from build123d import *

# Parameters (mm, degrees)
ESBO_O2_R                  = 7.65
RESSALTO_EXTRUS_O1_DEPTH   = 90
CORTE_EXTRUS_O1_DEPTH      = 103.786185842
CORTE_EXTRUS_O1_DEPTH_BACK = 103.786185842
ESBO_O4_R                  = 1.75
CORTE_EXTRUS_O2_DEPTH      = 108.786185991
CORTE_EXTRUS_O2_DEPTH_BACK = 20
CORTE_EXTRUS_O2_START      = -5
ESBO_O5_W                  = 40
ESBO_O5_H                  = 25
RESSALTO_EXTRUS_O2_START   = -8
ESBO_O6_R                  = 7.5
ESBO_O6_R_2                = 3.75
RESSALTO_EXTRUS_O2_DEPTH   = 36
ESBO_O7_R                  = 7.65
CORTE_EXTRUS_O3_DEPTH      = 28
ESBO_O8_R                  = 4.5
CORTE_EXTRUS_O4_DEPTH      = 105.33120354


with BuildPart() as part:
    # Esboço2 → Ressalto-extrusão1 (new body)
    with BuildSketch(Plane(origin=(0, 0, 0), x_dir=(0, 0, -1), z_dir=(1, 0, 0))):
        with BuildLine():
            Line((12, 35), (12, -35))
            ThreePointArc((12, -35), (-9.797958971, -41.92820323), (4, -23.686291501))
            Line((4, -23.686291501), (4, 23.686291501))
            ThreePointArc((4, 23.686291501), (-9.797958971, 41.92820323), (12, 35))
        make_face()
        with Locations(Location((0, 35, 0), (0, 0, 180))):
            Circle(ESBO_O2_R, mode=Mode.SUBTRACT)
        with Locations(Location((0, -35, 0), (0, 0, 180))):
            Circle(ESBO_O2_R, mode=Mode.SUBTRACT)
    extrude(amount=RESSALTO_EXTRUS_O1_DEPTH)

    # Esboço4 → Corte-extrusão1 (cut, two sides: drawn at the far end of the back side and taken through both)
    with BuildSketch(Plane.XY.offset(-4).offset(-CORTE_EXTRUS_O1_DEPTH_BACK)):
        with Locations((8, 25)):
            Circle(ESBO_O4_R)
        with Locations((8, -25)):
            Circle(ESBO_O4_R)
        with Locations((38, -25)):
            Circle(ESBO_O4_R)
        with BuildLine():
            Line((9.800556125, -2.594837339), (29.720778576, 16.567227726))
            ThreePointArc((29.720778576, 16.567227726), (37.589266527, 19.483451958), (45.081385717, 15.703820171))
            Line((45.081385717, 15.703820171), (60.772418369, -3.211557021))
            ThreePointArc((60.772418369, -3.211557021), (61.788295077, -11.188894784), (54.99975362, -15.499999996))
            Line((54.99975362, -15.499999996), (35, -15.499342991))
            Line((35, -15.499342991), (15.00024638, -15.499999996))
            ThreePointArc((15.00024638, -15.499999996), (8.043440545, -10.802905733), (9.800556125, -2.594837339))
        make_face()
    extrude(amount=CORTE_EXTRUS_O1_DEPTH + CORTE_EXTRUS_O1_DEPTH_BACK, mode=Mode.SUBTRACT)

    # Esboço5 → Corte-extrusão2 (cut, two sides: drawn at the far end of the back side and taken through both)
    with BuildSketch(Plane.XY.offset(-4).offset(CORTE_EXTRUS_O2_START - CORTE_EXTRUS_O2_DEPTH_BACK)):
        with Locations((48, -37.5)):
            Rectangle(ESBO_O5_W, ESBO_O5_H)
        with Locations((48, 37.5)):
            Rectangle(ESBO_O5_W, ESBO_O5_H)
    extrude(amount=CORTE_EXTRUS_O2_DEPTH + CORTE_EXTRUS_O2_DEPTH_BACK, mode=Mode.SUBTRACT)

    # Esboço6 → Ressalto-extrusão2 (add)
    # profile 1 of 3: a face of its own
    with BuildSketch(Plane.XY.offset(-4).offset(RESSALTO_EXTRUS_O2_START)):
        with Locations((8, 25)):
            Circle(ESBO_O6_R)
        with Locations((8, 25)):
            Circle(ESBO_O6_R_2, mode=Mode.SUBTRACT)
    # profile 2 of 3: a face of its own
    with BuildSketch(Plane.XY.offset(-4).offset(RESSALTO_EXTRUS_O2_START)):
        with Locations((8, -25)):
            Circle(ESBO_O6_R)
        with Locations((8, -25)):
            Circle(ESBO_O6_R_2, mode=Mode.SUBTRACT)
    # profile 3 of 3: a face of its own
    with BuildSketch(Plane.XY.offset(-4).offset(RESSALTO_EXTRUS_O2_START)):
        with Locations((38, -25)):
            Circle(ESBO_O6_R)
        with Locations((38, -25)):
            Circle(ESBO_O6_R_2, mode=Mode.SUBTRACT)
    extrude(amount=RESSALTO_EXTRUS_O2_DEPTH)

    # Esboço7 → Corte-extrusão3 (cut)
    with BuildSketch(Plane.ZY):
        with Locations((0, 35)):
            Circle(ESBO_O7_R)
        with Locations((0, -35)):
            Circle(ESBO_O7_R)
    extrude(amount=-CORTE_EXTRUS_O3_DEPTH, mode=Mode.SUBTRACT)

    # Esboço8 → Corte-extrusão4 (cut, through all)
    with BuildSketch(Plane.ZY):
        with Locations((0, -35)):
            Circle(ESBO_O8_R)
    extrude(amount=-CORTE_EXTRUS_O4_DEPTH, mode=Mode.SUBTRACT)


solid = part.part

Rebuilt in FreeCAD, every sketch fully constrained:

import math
import FreeCAD as App
import Part
import Sketcher


def add_polygon(sketch, points):
    """Adds a closed chain of lines whose ends are joined by coincident constraints."""
    first, n = sketch.GeometryCount, len(points)
    for a, b in zip(points, points[1:] + points[:1]):
        sketch.addGeometry(Part.LineSegment(App.Vector(*a, 0), App.Vector(*b, 0)), False)
    for i in range(n):
        sketch.addConstraint(Sketcher.Constraint("Coincident", first + i, 2, first + (i + 1) % n, 1))

doc = App.newDocument("Part")
body = doc.addObject("PartDesign::Body", "Body")

# Sketch on YZ plane
sketch1 = doc.addObject("Sketcher::SketchObject", "Sketch")
body.addObject(sketch1)
sketch1.AttachmentSupport = (doc.YZ_Plane, [""])
sketch1.MapMode = "FlatFace"
sketch1.addGeometry([
    Part.LineSegment(App.Vector(-35, -12, 0), App.Vector(35, -12, 0)),  # 0
    Part.ArcOfCircle(Part.Circle(App.Vector(35, 0, 0), App.Vector(0, 0, 1), 12), math.radians(-90), math.radians(199)),  # 1
    Part.LineSegment(App.Vector(24, -4, 0), App.Vector(-24, -4, 0)),  # 2
    Part.ArcOfCircle(Part.Circle(App.Vector(-35, 0, 0), App.Vector(0, 0, 1), 12), math.radians(-19), math.radians(270)),  # 3
    Part.Circle(App.Vector(-35, 0, 0), App.Vector(0, 0, 1), 8),  # 4
    Part.Circle(App.Vector(35, 0, 0), App.Vector(0, 0, 1), 8),  # 5
], False)
sketch1.addConstraint([
    Sketcher.Constraint("Tangent", 0, 2, 1, 1),
    Sketcher.Constraint("Coincident", 1, 2, 2, 1),
    Sketcher.Constraint("Coincident", 2, 2, 3, 1),
    Sketcher.Constraint("Tangent", 3, 2, 0, 1),
    Sketcher.Constraint("Horizontal", 0),
    Sketcher.Constraint("Horizontal", 2),
    Sketcher.Constraint("Coincident", 4, 3, 3, 3),
    Sketcher.Constraint("Coincident", 5, 3, 1, 3),
    Sketcher.Constraint("Equal", 1, 3),
    Sketcher.Constraint("Equal", 4, 5),
    Sketcher.Constraint("Symmetric", 1, 3, 3, 3, -1, 1),
    Sketcher.Constraint("Radius", 1, 12.0),
    Sketcher.Constraint("Diameter", 4, 15.3),
    Sketcher.Constraint("DistanceX", 0, 1, 0, 2, 70.0),
    Sketcher.Constraint("DistanceY", 1, 2, -1, 1, 4.0),
])
pad1 = doc.addObject("PartDesign::Pad", "Pad")
body.addObject(pad1)
pad1.Profile = sketch1
pad1.Length = 90

# Sketch on XY plane
sketch2 = doc.addObject("Sketcher::SketchObject", "Sketch001")
body.addObject(sketch2)
sketch2.AttachmentSupport = (doc.XY_Plane, [""])
sketch2.MapMode = "FlatFace"
sketch2.AttachmentOffset = App.Placement(App.Vector(0, 0, -4), App.Rotation())
sketch2.addGeometry([
    Part.Circle(App.Vector(8, 25, 0), App.Vector(0, 0, 1), 1.8),  # 0
    Part.Circle(App.Vector(8, -25, 0), App.Vector(0, 0, 1), 1.8),  # 1
    Part.Circle(App.Vector(38, -25, 0), App.Vector(0, 0, 1), 1.8),  # 2
    Part.LineSegment(App.Vector(29.7, 16.6, 0), App.Vector(9.8, -2.6, 0)),  # 3
    Part.ArcOfCircle(Part.Circle(App.Vector(15, -8, 0), App.Vector(0, 0, 1), 7.5), math.radians(134), math.radians(270)),  # 4
    Part.LineSegment(App.Vector(15, -15.5, 0), App.Vector(35, -15.5, 0)),  # 5
    Part.LineSegment(App.Vector(35, -15.5, 0), App.Vector(55, -15.5, 0)),  # 6
    Part.ArcOfCircle(Part.Circle(App.Vector(55, -8, 0), App.Vector(0, 0, 1), 7.5), math.radians(-90), math.radians(40)),  # 7
    Part.LineSegment(App.Vector(60.8, -3.2, 0), App.Vector(45.1, 15.7, 0)),  # 8
    Part.ArcOfCircle(Part.Circle(App.Vector(37, 9, 0), App.Vector(0, 0, 1), 10.5), math.radians(40), math.radians(134)),  # 9
], False)
sketch2.addConstraint([
    Sketcher.Constraint("Tangent", 3, 2, 4, 1),
    Sketcher.Constraint("Tangent", 4, 2, 5, 1),
    Sketcher.Constraint("Coincident", 5, 2, 6, 1),
    Sketcher.Constraint("Tangent", 6, 2, 7, 1),
    Sketcher.Constraint("Tangent", 7, 2, 8, 1),
    Sketcher.Constraint("Tangent", 8, 2, 9, 1),
    Sketcher.Constraint("Tangent", 9, 2, 3, 1),
    Sketcher.Constraint("Equal", 0, 1),
    Sketcher.Constraint("Equal", 1, 2),
    Sketcher.Constraint("Equal", 4, 7),
    Sketcher.Constraint("Symmetric", 0, 3, 1, 3, -1),
    Sketcher.Constraint("Horizontal", 1, 3, 2, 3),
    Sketcher.Constraint("Horizontal", 4, 3, 7, 3),
    Sketcher.Constraint("Equal", 5, 6),
    Sketcher.Constraint("Diameter", 0, 3.5),
    Sketcher.Constraint("Radius", 4, 7.5),
    Sketcher.Constraint("Radius", 9, 10.5),
    Sketcher.Constraint("DistanceX", -1, 1, 0, 3, 8.0),
    Sketcher.Constraint("DistanceY", -1, 1, 0, 3, 25.0),
    Sketcher.Constraint("DistanceX", -1, 1, 2, 3, 38.0),
    Sketcher.Constraint("DistanceX", -1, 1, 4, 3, 15.0),
    Sketcher.Constraint("DistanceY", 4, 3, -1, 1, 8.0),
    Sketcher.Constraint("DistanceX", -1, 1, 7, 3, 55.0),
    Sketcher.Constraint("DistanceX", -1, 1, 9, 3, 37.0),
    Sketcher.Constraint("DistanceY", -1, 1, 9, 3, 9.0),
    Sketcher.Constraint("DistanceX", 3, 2, 4, 2, 5.19969),
])
pocket1 = doc.addObject("PartDesign::Pocket", "Pocket")
body.addObject(pocket1)
pocket1.Profile = sketch2
pocket1.Type = "ThroughAll"
pocket1.Midplane = True

# Sketch on XY plane
sketch3 = doc.addObject("Sketcher::SketchObject", "Sketch002")
body.addObject(sketch3)
sketch3.AttachmentSupport = (doc.XY_Plane, [""])
sketch3.MapMode = "FlatFace"
sketch3.AttachmentOffset = App.Placement(App.Vector(0, 0, -9), App.Rotation())
add_polygon(sketch3, [(28, -25), (28, -50), (68, -50), (68, -25)])  # lines 0-3
add_polygon(sketch3, [(28, 50), (28, 25), (68, 25), (68, 50)])  # lines 4-7
sketch3.addConstraint([
    Sketcher.Constraint("Vertical", 0),
    Sketcher.Constraint("Horizontal", 1),
    Sketcher.Constraint("Vertical", 2),
    Sketcher.Constraint("Horizontal", 3),
    Sketcher.Constraint("Vertical", 4),
    Sketcher.Constraint("Horizontal", 5),
    Sketcher.Constraint("Vertical", 6),
    Sketcher.Constraint("Horizontal", 7),
    Sketcher.Constraint("Symmetric", 3, 2, 4, 2, -1),
    Sketcher.Constraint("Symmetric", 1, 2, 6, 2, -1),
    Sketcher.Constraint("DistanceX", 1, 1, 1, 2, 40.0),
    Sketcher.Constraint("DistanceY", 0, 2, 0, 1, 25.0),
    Sketcher.Constraint("DistanceX", -1, 1, 0, 2, 28.0),
    Sketcher.Constraint("DistanceY", 0, 2, -1, 1, 50.0),
])
pocket2 = doc.addObject("PartDesign::Pocket", "Pocket001")
body.addObject(pocket2)
pocket2.Profile = sketch3
pocket2.Type = "ThroughAll"
pocket2.Midplane = True

# Sketch on XY plane
sketch4 = doc.addObject("Sketcher::SketchObject", "Sketch003")
body.addObject(sketch4)
sketch4.AttachmentSupport = (doc.XY_Plane, [""])
sketch4.MapMode = "FlatFace"
sketch4.AttachmentOffset = App.Placement(App.Vector(0, 0, -12), App.Rotation())
sketch4.addGeometry([
    Part.Circle(App.Vector(8, 25, 0), App.Vector(0, 0, 1), 7.5),  # 0
    Part.Circle(App.Vector(8, 25, 0), App.Vector(0, 0, 1), 3.8),  # 1
    Part.Circle(App.Vector(8, -25, 0), App.Vector(0, 0, 1), 7.5),  # 2
    Part.Circle(App.Vector(8, -25, 0), App.Vector(0, 0, 1), 3.8),  # 3
    Part.Circle(App.Vector(38, -25, 0), App.Vector(0, 0, 1), 7.5),  # 4
    Part.Circle(App.Vector(38, -25, 0), App.Vector(0, 0, 1), 3.8),  # 5
], False)
sketch4.addConstraint([
    Sketcher.Constraint("Coincident", 1, 3, 0, 3),
    Sketcher.Constraint("Coincident", 3, 3, 2, 3),
    Sketcher.Constraint("Coincident", 5, 3, 4, 3),
    Sketcher.Constraint("Equal", 0, 2),
    Sketcher.Constraint("Equal", 1, 3),
    Sketcher.Constraint("Equal", 2, 4),
    Sketcher.Constraint("Equal", 3, 5),
    Sketcher.Constraint("Symmetric", 0, 3, 2, 3, -1),
    Sketcher.Constraint("Horizontal", 3, 3, 4, 3),
    Sketcher.Constraint("Diameter", 0, 15.0),
    Sketcher.Constraint("Diameter", 1, 7.5),
    Sketcher.Constraint("DistanceX", -1, 1, 0, 3, 8.0),
    Sketcher.Constraint("DistanceY", -1, 1, 0, 3, 25.0),
    Sketcher.Constraint("DistanceX", -1, 1, 4, 3, 38.0),
])
pad2 = doc.addObject("PartDesign::Pad", "Pad001")
body.addObject(pad2)
pad2.Profile = sketch4
pad2.Length = 36

# Sketch on YZ plane
sketch5 = doc.addObject("Sketcher::SketchObject", "Sketch004")
body.addObject(sketch5)
sketch5.AttachmentSupport = (doc.YZ_Plane, [""])
sketch5.MapMode = "FlatFace"
sketch5.addGeometry([
    Part.Circle(App.Vector(35, 0, 0), App.Vector(0, 0, 1), 8),
    Part.Circle(App.Vector(-35, 0, 0), App.Vector(0, 0, 1), 8),
], False)
sketch5.addConstraint([
    Sketcher.Constraint("Equal", 0, 1),
    Sketcher.Constraint("Symmetric", 0, 3, 1, 3, -1, 1),
    Sketcher.Constraint("PointOnObject", 0, 3, -1),
    Sketcher.Constraint("Diameter", 0, 15.3),
    Sketcher.Constraint("DistanceX", -1, 1, 0, 3, 35.0),
])
pocket3 = doc.addObject("PartDesign::Pocket", "Pocket002")
body.addObject(pocket3)
pocket3.Profile = sketch5
pocket3.Length = 28
pocket3.Reversed = True

# Sketch on YZ plane
sketch6 = doc.addObject("Sketcher::SketchObject", "Sketch005")
body.addObject(sketch6)
sketch6.AttachmentSupport = (doc.YZ_Plane, [""])
sketch6.MapMode = "FlatFace"
sketch6.addGeometry(Part.Circle(App.Vector(-35, 0, 0), App.Vector(0, 0, 1), 4.5), False)
sketch6.addConstraint([
    Sketcher.Constraint("PointOnObject", 0, 3, -1),
    Sketcher.Constraint("Diameter", 0, 9.0),
    Sketcher.Constraint("DistanceX", 0, 3, -1, 1, 35.0),
])
pocket4 = doc.addObject("PartDesign::Pocket", "Pocket003")
body.addObject(pocket4)
pocket4.Profile = sketch6
pocket4.Type = "ThroughAll"
pocket4.Reversed = True

doc.recompute()
